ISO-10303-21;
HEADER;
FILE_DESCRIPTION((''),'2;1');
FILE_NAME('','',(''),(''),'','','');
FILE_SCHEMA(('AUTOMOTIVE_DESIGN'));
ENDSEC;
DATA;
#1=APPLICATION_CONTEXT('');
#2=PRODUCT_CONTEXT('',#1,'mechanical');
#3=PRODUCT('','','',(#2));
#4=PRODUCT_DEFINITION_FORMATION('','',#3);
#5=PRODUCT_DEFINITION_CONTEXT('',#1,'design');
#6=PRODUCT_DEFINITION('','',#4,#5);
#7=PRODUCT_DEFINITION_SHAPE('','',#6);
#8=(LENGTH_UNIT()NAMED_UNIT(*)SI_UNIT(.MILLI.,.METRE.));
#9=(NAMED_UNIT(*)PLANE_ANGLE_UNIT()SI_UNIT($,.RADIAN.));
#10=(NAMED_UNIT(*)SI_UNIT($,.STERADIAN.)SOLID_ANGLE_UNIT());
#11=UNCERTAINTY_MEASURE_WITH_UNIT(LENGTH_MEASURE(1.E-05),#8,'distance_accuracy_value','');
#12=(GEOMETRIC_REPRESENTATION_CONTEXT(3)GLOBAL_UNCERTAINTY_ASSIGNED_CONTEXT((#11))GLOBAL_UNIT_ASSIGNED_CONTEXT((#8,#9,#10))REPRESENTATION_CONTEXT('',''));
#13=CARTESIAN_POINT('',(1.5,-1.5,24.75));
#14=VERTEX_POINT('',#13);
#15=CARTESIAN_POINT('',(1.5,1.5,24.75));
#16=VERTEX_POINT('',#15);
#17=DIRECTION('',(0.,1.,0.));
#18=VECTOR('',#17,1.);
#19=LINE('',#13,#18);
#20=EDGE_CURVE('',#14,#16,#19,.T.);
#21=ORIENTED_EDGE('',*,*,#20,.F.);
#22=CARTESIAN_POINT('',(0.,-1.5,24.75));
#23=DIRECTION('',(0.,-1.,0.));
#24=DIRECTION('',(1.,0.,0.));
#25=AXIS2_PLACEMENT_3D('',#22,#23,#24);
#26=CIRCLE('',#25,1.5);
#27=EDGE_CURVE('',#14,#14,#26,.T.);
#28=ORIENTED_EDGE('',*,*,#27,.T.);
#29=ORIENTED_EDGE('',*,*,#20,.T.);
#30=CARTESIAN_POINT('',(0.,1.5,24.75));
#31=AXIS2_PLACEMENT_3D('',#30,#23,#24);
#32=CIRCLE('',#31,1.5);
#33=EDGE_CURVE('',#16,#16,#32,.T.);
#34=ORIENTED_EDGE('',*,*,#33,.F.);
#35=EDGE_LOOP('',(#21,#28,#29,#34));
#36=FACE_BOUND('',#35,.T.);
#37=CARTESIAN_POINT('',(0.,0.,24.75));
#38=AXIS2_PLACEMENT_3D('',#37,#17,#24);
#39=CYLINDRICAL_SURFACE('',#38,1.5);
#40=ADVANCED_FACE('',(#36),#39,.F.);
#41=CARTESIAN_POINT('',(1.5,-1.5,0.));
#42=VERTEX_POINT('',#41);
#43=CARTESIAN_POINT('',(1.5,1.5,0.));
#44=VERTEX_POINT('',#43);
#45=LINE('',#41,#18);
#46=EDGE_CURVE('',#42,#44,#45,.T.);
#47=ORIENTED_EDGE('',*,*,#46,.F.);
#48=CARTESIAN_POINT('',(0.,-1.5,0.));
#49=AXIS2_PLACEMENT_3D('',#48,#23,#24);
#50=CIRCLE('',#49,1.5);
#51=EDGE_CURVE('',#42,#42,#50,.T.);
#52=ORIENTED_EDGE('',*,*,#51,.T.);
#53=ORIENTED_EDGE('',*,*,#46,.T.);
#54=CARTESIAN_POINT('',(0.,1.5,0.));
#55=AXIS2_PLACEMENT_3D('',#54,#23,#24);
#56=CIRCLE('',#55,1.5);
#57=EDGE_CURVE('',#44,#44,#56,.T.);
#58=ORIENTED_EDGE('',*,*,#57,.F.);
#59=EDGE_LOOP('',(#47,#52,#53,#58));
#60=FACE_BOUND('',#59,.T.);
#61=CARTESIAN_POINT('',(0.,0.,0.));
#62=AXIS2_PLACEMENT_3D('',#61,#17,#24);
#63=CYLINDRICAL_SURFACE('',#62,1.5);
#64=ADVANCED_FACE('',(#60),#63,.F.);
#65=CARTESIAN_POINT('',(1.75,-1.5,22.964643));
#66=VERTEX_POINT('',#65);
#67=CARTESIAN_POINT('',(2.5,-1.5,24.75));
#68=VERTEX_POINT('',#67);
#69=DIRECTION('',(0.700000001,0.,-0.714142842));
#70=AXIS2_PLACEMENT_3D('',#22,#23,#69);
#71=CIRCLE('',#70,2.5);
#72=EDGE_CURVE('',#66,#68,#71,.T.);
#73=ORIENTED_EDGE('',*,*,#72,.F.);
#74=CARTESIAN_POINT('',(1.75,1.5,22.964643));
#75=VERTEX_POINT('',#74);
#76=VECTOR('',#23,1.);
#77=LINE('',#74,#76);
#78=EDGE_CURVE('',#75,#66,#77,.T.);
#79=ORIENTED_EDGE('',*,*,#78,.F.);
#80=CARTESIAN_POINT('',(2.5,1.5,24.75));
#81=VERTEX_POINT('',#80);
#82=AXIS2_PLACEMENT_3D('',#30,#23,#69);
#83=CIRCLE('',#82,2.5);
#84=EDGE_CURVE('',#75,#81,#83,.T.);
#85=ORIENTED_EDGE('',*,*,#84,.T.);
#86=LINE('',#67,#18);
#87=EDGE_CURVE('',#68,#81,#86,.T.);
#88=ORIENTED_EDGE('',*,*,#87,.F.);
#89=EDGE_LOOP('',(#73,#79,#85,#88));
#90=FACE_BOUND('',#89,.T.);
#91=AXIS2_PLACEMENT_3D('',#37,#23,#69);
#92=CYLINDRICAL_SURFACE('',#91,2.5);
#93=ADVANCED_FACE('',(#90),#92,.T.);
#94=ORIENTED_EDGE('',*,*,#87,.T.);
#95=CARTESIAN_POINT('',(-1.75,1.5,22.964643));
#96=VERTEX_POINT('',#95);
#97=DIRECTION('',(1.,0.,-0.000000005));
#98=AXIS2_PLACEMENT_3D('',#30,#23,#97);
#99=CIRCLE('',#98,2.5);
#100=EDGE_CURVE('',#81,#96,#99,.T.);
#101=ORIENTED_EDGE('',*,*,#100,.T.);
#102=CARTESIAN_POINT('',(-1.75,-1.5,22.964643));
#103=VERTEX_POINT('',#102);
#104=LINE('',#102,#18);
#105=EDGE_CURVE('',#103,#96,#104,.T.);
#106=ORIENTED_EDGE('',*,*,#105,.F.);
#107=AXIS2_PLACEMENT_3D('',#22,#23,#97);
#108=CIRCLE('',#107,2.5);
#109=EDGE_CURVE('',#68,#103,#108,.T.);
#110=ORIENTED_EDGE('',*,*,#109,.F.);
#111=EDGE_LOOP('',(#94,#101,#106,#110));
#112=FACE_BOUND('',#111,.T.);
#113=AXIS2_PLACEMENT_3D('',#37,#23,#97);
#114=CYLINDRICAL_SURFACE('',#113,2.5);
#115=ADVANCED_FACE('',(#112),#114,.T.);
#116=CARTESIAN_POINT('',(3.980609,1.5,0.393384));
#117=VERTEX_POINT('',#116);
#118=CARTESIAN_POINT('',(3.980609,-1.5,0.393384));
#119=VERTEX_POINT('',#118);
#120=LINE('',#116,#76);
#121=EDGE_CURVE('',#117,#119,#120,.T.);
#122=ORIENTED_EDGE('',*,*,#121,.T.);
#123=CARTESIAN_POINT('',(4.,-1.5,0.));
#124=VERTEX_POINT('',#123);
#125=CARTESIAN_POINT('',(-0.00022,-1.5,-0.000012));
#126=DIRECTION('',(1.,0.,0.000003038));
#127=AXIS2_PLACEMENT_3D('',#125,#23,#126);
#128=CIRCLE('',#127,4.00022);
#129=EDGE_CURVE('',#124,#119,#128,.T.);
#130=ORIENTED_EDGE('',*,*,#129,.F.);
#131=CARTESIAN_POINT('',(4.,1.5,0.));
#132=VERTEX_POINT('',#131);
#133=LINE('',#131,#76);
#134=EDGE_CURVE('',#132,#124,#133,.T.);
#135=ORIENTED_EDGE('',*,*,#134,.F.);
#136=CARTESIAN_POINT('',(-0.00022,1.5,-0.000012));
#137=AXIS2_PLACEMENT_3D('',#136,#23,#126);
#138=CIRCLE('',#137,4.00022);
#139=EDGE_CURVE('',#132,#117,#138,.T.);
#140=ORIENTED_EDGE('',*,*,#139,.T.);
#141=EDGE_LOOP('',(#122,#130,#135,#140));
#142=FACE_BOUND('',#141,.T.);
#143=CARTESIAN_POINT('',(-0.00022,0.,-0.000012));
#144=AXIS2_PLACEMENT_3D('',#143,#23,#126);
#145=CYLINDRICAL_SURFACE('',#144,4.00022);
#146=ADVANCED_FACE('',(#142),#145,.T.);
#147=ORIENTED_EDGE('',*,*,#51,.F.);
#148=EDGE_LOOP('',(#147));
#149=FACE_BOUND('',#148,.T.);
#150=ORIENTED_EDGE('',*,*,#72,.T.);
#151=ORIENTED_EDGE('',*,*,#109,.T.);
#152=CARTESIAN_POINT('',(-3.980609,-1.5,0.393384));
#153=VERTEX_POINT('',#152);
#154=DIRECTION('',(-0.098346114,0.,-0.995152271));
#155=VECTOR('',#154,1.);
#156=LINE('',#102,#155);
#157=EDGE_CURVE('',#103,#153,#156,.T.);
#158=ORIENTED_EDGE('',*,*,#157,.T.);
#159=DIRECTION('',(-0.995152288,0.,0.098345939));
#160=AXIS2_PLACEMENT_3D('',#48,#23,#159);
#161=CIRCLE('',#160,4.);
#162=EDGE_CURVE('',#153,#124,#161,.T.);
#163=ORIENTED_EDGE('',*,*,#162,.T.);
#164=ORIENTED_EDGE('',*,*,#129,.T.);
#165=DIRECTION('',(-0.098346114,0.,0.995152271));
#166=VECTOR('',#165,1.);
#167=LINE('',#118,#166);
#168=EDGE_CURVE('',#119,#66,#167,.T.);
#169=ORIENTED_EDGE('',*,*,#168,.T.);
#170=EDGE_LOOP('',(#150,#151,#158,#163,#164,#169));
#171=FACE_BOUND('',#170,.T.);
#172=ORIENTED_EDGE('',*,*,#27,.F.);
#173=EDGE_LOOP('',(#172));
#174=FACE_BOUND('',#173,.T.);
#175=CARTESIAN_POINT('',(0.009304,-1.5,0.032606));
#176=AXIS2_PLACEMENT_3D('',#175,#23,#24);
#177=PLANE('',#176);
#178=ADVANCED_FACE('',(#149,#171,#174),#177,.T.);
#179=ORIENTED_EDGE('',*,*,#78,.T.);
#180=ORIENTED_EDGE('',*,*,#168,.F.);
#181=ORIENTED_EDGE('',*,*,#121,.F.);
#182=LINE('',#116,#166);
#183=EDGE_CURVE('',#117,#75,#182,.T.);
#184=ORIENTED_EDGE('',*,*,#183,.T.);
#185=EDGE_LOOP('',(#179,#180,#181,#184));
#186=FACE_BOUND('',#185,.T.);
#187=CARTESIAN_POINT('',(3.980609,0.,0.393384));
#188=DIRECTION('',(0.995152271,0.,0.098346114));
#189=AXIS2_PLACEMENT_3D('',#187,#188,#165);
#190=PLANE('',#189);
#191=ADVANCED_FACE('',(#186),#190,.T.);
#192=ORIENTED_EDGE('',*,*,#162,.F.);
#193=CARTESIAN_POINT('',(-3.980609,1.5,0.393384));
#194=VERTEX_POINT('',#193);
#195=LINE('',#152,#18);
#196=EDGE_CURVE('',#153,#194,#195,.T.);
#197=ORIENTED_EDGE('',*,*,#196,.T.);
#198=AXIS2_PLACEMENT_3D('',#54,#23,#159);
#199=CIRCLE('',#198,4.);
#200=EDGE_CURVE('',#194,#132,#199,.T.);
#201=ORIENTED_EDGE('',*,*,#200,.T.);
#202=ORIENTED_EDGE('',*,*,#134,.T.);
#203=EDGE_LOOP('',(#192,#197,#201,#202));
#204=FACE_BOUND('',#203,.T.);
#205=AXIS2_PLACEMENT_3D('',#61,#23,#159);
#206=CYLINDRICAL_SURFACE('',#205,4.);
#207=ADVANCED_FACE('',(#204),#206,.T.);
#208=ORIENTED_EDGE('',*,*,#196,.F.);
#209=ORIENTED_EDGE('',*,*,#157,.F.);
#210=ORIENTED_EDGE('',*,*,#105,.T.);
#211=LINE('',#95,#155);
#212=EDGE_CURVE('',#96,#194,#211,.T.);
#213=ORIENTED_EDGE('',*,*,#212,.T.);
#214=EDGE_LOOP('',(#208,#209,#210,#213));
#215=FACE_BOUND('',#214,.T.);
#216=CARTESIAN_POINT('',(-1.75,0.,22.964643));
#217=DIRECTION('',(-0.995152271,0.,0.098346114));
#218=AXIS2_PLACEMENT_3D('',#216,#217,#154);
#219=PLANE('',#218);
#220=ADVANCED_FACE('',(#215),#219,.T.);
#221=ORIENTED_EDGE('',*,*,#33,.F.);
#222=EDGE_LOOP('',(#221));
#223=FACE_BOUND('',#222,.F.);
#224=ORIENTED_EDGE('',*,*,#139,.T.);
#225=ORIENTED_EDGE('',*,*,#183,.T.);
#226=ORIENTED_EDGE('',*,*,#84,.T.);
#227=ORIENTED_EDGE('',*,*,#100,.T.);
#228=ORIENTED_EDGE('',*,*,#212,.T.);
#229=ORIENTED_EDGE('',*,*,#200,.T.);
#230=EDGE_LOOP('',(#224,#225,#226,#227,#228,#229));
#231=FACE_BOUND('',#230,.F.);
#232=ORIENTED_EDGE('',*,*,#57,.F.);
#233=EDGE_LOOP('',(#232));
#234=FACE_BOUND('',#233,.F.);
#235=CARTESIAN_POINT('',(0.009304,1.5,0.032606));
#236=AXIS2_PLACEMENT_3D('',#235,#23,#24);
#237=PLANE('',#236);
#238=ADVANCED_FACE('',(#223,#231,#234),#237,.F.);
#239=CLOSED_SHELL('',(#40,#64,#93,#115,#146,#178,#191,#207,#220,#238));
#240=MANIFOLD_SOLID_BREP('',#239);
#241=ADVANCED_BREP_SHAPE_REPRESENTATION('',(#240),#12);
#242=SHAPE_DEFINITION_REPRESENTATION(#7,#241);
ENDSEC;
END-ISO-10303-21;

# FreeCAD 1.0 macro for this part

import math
import FreeCAD as App
import Part
import Sketcher

V = App.Vector

doc = App.newDocument("Part")
body = doc.addObject("PartDesign::Body", "Body")

# Sketch on XZ plane
sketch1 = body.newObject("Sketcher::SketchObject", "Sketch")
sketch1.AttachmentSupport = (doc.getObject("XZ_Plane"), [""])
sketch1.MapMode = "FlatFace"
sketch1.addGeometry([
    Part.ArcOfCircle(Part.Circle(V(0, 0, 0), V(0, 0, 1), 4), math.radians(174), math.radians(360)),  # 0
    Part.ArcOfCircle(Part.Circle(V(0, 0, 0), V(0, 0, 1), 4), math.radians(0), math.radians(5.64)),  # 1
    Part.LineSegment(V(3.98, 0.39, 0), V(1.75, 22.96, 0)),  # 2
    Part.ArcOfCircle(Part.Circle(V(0, 24.75, 0), V(0, 0, 1), 2.5), math.radians(-46), math.radians(0)),  # 3
    Part.ArcOfCircle(Part.Circle(V(0, 24.75, 0), V(0, 0, 1), 2.5), math.radians(0), math.radians(226)),  # 4
    Part.LineSegment(V(-1.75, 22.96, 0), V(-3.98, 0.39, 0)),  # 5
    Part.Circle(V(0, 0, 0), V(0, 0, 1), 1.5),  # 6
    Part.Circle(V(0, 24.75, 0), V(0, 0, 1), 1.5),  # 7
], False)
sketch1.addConstraint([
    Sketcher.Constraint("Coincident", 0, 2, 1, 1),
    Sketcher.Constraint("Coincident", 1, 2, 2, 1),
    Sketcher.Constraint("Coincident", 2, 2, 3, 1),
    Sketcher.Constraint("Tangent", 3, 2, 4, 1),
    Sketcher.Constraint("Coincident", 4, 2, 5, 1),
    Sketcher.Constraint("Tangent", 5, 2, 0, 1),
    Sketcher.Constraint("Coincident", 0, 3, -1, 1),
    Sketcher.Constraint("Coincident", 6, 3, -1, 1),
    Sketcher.Constraint("Coincident", 7, 3, 3, 3),
    Sketcher.Constraint("Equal", 3, 4),
    Sketcher.Constraint("Equal", 6, 7),
    Sketcher.Constraint("Symmetric", 2, 2, 4, 2, -2),
    Sketcher.Constraint("Symmetric", 1, 2, 5, 2, -2),
    Sketcher.Constraint("PointOnObject", 0, 2, -1),
    Sketcher.Constraint("Horizontal", 7, 3, 3, 2),
    Sketcher.Constraint("Diameter", 6, 3.0),
    Sketcher.Constraint("Radius", 0, 4.0),
    Sketcher.Constraint("Radius", 3, 2.5),
    Sketcher.Constraint("DistanceX", 4, 2, 2, 2, 3.5),
    Sketcher.Constraint("DistanceY", -1, 1, 3, 3, 24.75),
    Sketcher.Constraint("Radius", 1, 4.00022),
])
pad1 = body.newObject("PartDesign::Pad", "Pad")
pad1.Profile = sketch1
pad1.Length = 3
pad1.Midplane = True

doc.recompute()
